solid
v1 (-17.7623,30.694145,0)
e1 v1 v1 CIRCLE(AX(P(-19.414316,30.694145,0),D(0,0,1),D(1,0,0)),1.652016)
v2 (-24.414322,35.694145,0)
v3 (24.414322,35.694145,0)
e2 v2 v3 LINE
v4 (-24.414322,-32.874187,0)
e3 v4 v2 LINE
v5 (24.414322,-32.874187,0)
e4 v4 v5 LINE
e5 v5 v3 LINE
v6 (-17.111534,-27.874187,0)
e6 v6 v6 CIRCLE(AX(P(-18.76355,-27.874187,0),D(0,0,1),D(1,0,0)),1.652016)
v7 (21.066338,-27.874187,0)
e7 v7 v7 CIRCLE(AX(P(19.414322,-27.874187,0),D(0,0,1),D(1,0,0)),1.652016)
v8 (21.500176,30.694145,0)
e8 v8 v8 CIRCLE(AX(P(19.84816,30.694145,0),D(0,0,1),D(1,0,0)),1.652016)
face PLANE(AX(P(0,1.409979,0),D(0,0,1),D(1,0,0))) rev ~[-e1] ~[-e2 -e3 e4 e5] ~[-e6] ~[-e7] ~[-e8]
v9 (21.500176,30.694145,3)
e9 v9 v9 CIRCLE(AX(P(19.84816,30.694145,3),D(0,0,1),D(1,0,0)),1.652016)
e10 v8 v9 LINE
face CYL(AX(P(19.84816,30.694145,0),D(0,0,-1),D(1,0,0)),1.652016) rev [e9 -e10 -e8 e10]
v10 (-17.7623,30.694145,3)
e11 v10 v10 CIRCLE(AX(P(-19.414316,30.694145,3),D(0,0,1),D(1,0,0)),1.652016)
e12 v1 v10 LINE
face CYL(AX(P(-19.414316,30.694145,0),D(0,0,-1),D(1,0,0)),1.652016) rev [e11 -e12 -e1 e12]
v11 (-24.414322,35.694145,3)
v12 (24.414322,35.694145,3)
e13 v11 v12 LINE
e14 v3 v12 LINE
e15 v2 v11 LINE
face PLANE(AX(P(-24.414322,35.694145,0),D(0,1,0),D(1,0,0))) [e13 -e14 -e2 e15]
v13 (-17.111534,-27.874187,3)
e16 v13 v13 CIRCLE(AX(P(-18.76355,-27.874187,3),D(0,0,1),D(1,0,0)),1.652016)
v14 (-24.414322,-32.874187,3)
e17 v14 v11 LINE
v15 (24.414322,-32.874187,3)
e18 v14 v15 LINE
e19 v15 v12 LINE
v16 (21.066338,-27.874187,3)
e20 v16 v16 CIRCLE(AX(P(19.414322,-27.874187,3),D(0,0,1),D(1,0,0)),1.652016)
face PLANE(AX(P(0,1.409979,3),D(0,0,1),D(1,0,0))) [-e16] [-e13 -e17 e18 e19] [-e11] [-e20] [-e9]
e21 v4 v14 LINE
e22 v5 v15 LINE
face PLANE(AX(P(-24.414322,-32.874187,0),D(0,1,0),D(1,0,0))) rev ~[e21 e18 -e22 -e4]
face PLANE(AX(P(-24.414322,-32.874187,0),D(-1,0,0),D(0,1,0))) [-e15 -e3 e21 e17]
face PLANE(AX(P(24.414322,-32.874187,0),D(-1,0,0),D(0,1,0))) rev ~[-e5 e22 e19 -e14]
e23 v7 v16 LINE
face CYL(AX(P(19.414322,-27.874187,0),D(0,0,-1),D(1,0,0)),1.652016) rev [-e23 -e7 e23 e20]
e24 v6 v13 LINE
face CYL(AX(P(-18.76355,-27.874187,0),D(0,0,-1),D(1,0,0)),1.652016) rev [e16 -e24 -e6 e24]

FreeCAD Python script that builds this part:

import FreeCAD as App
import Part
import Sketcher

V = App.Vector


def add_polygon(sketch, points):
    """Adds a closed chain of lines whose ends are joined by coincident constraints."""
    first, n = sketch.GeometryCount, len(points)
    for a, b in zip(points, points[1:] + points[:1]):
        sketch.addGeometry(Part.LineSegment(App.Vector(*a, 0), App.Vector(*b, 0)), False)
    for i in range(n):
        sketch.addConstraint(Sketcher.Constraint("Coincident", first + i, 2, first + (i + 1) % n, 1))

doc = App.newDocument("Part")
body = doc.addObject("PartDesign::Body", "Body")

# Sketch on XY plane
sketch1 = body.newObject("Sketcher::SketchObject", "Sketch")
sketch1.AttachmentSupport = (doc.getObject("XY_Plane"), [""])
sketch1.MapMode = "FlatFace"
add_polygon(sketch1, [(-24.414322, 35.694145), (-24.414322, -32.874187), (24.414322, -32.874187), (24.414322, 35.694145)])  # lines 0-3
sketch1.addGeometry(Part.Circle(V(-18.76355, -27.874187, 0), V(0, 0, 1), 1.652016), False)  # 4
sketch1.addGeometry(Part.Circle(V(19.414322, -27.874187, 0), V(0, 0, 1), 1.652016), False)  # 5
sketch1.addGeometry(Part.Circle(V(-19.414316, 30.694145, 0), V(0, 0, 1), 1.652016), False)  # 6
sketch1.addGeometry(Part.Circle(V(19.84816, 30.694145, 0), V(0, 0, 1), 1.652016), False)  # 7
sketch1.addConstraint([
    Sketcher.Constraint("Vertical", 0),
    Sketcher.Constraint("Horizontal", 1),
    Sketcher.Constraint("Vertical", 2),
    Sketcher.Constraint("Horizontal", 3),
    Sketcher.Constraint("Equal", 4, 5),
    Sketcher.Constraint("Equal", 5, 6),
    Sketcher.Constraint("Equal", 6, 7),
    Sketcher.Constraint("Horizontal", 4, 3, 5, 3),
    Sketcher.Constraint("Horizontal", 6, 3, 7, 3),
    Sketcher.Constraint("DistanceY", 0, 2, 4, 3, 5.0),
    Sketcher.Constraint("DistanceX", 5, 3, 1, 2, 5.0),
    Sketcher.Constraint("DistanceY", 7, 3, 2, 2, 5.0),
    Sketcher.Constraint("Diameter", 4, 3.304032),
    Sketcher.Constraint("DistanceY", 0, 2, 0, 1, 68.568332),
    Sketcher.Constraint("DistanceX", 1, 1, 1, 2, 48.828644),
    Sketcher.Constraint("DistanceX", 4, 3, -1, 1, 18.76355),
    Sketcher.Constraint("DistanceX", -1, 1, 5, 3, 19.414322),
    Sketcher.Constraint("DistanceX", -1, 1, 7, 3, 19.84816),
    Sketcher.Constraint("DistanceY", 4, 3, -1, 1, 27.874187),
    Sketcher.Constraint("DistanceX", 6, 3, -1, 1, 19.414316),
])
pad1 = body.newObject("PartDesign::Pad", "Pad")
pad1.Profile = sketch1
pad1.Length = 3

doc.recompute()
